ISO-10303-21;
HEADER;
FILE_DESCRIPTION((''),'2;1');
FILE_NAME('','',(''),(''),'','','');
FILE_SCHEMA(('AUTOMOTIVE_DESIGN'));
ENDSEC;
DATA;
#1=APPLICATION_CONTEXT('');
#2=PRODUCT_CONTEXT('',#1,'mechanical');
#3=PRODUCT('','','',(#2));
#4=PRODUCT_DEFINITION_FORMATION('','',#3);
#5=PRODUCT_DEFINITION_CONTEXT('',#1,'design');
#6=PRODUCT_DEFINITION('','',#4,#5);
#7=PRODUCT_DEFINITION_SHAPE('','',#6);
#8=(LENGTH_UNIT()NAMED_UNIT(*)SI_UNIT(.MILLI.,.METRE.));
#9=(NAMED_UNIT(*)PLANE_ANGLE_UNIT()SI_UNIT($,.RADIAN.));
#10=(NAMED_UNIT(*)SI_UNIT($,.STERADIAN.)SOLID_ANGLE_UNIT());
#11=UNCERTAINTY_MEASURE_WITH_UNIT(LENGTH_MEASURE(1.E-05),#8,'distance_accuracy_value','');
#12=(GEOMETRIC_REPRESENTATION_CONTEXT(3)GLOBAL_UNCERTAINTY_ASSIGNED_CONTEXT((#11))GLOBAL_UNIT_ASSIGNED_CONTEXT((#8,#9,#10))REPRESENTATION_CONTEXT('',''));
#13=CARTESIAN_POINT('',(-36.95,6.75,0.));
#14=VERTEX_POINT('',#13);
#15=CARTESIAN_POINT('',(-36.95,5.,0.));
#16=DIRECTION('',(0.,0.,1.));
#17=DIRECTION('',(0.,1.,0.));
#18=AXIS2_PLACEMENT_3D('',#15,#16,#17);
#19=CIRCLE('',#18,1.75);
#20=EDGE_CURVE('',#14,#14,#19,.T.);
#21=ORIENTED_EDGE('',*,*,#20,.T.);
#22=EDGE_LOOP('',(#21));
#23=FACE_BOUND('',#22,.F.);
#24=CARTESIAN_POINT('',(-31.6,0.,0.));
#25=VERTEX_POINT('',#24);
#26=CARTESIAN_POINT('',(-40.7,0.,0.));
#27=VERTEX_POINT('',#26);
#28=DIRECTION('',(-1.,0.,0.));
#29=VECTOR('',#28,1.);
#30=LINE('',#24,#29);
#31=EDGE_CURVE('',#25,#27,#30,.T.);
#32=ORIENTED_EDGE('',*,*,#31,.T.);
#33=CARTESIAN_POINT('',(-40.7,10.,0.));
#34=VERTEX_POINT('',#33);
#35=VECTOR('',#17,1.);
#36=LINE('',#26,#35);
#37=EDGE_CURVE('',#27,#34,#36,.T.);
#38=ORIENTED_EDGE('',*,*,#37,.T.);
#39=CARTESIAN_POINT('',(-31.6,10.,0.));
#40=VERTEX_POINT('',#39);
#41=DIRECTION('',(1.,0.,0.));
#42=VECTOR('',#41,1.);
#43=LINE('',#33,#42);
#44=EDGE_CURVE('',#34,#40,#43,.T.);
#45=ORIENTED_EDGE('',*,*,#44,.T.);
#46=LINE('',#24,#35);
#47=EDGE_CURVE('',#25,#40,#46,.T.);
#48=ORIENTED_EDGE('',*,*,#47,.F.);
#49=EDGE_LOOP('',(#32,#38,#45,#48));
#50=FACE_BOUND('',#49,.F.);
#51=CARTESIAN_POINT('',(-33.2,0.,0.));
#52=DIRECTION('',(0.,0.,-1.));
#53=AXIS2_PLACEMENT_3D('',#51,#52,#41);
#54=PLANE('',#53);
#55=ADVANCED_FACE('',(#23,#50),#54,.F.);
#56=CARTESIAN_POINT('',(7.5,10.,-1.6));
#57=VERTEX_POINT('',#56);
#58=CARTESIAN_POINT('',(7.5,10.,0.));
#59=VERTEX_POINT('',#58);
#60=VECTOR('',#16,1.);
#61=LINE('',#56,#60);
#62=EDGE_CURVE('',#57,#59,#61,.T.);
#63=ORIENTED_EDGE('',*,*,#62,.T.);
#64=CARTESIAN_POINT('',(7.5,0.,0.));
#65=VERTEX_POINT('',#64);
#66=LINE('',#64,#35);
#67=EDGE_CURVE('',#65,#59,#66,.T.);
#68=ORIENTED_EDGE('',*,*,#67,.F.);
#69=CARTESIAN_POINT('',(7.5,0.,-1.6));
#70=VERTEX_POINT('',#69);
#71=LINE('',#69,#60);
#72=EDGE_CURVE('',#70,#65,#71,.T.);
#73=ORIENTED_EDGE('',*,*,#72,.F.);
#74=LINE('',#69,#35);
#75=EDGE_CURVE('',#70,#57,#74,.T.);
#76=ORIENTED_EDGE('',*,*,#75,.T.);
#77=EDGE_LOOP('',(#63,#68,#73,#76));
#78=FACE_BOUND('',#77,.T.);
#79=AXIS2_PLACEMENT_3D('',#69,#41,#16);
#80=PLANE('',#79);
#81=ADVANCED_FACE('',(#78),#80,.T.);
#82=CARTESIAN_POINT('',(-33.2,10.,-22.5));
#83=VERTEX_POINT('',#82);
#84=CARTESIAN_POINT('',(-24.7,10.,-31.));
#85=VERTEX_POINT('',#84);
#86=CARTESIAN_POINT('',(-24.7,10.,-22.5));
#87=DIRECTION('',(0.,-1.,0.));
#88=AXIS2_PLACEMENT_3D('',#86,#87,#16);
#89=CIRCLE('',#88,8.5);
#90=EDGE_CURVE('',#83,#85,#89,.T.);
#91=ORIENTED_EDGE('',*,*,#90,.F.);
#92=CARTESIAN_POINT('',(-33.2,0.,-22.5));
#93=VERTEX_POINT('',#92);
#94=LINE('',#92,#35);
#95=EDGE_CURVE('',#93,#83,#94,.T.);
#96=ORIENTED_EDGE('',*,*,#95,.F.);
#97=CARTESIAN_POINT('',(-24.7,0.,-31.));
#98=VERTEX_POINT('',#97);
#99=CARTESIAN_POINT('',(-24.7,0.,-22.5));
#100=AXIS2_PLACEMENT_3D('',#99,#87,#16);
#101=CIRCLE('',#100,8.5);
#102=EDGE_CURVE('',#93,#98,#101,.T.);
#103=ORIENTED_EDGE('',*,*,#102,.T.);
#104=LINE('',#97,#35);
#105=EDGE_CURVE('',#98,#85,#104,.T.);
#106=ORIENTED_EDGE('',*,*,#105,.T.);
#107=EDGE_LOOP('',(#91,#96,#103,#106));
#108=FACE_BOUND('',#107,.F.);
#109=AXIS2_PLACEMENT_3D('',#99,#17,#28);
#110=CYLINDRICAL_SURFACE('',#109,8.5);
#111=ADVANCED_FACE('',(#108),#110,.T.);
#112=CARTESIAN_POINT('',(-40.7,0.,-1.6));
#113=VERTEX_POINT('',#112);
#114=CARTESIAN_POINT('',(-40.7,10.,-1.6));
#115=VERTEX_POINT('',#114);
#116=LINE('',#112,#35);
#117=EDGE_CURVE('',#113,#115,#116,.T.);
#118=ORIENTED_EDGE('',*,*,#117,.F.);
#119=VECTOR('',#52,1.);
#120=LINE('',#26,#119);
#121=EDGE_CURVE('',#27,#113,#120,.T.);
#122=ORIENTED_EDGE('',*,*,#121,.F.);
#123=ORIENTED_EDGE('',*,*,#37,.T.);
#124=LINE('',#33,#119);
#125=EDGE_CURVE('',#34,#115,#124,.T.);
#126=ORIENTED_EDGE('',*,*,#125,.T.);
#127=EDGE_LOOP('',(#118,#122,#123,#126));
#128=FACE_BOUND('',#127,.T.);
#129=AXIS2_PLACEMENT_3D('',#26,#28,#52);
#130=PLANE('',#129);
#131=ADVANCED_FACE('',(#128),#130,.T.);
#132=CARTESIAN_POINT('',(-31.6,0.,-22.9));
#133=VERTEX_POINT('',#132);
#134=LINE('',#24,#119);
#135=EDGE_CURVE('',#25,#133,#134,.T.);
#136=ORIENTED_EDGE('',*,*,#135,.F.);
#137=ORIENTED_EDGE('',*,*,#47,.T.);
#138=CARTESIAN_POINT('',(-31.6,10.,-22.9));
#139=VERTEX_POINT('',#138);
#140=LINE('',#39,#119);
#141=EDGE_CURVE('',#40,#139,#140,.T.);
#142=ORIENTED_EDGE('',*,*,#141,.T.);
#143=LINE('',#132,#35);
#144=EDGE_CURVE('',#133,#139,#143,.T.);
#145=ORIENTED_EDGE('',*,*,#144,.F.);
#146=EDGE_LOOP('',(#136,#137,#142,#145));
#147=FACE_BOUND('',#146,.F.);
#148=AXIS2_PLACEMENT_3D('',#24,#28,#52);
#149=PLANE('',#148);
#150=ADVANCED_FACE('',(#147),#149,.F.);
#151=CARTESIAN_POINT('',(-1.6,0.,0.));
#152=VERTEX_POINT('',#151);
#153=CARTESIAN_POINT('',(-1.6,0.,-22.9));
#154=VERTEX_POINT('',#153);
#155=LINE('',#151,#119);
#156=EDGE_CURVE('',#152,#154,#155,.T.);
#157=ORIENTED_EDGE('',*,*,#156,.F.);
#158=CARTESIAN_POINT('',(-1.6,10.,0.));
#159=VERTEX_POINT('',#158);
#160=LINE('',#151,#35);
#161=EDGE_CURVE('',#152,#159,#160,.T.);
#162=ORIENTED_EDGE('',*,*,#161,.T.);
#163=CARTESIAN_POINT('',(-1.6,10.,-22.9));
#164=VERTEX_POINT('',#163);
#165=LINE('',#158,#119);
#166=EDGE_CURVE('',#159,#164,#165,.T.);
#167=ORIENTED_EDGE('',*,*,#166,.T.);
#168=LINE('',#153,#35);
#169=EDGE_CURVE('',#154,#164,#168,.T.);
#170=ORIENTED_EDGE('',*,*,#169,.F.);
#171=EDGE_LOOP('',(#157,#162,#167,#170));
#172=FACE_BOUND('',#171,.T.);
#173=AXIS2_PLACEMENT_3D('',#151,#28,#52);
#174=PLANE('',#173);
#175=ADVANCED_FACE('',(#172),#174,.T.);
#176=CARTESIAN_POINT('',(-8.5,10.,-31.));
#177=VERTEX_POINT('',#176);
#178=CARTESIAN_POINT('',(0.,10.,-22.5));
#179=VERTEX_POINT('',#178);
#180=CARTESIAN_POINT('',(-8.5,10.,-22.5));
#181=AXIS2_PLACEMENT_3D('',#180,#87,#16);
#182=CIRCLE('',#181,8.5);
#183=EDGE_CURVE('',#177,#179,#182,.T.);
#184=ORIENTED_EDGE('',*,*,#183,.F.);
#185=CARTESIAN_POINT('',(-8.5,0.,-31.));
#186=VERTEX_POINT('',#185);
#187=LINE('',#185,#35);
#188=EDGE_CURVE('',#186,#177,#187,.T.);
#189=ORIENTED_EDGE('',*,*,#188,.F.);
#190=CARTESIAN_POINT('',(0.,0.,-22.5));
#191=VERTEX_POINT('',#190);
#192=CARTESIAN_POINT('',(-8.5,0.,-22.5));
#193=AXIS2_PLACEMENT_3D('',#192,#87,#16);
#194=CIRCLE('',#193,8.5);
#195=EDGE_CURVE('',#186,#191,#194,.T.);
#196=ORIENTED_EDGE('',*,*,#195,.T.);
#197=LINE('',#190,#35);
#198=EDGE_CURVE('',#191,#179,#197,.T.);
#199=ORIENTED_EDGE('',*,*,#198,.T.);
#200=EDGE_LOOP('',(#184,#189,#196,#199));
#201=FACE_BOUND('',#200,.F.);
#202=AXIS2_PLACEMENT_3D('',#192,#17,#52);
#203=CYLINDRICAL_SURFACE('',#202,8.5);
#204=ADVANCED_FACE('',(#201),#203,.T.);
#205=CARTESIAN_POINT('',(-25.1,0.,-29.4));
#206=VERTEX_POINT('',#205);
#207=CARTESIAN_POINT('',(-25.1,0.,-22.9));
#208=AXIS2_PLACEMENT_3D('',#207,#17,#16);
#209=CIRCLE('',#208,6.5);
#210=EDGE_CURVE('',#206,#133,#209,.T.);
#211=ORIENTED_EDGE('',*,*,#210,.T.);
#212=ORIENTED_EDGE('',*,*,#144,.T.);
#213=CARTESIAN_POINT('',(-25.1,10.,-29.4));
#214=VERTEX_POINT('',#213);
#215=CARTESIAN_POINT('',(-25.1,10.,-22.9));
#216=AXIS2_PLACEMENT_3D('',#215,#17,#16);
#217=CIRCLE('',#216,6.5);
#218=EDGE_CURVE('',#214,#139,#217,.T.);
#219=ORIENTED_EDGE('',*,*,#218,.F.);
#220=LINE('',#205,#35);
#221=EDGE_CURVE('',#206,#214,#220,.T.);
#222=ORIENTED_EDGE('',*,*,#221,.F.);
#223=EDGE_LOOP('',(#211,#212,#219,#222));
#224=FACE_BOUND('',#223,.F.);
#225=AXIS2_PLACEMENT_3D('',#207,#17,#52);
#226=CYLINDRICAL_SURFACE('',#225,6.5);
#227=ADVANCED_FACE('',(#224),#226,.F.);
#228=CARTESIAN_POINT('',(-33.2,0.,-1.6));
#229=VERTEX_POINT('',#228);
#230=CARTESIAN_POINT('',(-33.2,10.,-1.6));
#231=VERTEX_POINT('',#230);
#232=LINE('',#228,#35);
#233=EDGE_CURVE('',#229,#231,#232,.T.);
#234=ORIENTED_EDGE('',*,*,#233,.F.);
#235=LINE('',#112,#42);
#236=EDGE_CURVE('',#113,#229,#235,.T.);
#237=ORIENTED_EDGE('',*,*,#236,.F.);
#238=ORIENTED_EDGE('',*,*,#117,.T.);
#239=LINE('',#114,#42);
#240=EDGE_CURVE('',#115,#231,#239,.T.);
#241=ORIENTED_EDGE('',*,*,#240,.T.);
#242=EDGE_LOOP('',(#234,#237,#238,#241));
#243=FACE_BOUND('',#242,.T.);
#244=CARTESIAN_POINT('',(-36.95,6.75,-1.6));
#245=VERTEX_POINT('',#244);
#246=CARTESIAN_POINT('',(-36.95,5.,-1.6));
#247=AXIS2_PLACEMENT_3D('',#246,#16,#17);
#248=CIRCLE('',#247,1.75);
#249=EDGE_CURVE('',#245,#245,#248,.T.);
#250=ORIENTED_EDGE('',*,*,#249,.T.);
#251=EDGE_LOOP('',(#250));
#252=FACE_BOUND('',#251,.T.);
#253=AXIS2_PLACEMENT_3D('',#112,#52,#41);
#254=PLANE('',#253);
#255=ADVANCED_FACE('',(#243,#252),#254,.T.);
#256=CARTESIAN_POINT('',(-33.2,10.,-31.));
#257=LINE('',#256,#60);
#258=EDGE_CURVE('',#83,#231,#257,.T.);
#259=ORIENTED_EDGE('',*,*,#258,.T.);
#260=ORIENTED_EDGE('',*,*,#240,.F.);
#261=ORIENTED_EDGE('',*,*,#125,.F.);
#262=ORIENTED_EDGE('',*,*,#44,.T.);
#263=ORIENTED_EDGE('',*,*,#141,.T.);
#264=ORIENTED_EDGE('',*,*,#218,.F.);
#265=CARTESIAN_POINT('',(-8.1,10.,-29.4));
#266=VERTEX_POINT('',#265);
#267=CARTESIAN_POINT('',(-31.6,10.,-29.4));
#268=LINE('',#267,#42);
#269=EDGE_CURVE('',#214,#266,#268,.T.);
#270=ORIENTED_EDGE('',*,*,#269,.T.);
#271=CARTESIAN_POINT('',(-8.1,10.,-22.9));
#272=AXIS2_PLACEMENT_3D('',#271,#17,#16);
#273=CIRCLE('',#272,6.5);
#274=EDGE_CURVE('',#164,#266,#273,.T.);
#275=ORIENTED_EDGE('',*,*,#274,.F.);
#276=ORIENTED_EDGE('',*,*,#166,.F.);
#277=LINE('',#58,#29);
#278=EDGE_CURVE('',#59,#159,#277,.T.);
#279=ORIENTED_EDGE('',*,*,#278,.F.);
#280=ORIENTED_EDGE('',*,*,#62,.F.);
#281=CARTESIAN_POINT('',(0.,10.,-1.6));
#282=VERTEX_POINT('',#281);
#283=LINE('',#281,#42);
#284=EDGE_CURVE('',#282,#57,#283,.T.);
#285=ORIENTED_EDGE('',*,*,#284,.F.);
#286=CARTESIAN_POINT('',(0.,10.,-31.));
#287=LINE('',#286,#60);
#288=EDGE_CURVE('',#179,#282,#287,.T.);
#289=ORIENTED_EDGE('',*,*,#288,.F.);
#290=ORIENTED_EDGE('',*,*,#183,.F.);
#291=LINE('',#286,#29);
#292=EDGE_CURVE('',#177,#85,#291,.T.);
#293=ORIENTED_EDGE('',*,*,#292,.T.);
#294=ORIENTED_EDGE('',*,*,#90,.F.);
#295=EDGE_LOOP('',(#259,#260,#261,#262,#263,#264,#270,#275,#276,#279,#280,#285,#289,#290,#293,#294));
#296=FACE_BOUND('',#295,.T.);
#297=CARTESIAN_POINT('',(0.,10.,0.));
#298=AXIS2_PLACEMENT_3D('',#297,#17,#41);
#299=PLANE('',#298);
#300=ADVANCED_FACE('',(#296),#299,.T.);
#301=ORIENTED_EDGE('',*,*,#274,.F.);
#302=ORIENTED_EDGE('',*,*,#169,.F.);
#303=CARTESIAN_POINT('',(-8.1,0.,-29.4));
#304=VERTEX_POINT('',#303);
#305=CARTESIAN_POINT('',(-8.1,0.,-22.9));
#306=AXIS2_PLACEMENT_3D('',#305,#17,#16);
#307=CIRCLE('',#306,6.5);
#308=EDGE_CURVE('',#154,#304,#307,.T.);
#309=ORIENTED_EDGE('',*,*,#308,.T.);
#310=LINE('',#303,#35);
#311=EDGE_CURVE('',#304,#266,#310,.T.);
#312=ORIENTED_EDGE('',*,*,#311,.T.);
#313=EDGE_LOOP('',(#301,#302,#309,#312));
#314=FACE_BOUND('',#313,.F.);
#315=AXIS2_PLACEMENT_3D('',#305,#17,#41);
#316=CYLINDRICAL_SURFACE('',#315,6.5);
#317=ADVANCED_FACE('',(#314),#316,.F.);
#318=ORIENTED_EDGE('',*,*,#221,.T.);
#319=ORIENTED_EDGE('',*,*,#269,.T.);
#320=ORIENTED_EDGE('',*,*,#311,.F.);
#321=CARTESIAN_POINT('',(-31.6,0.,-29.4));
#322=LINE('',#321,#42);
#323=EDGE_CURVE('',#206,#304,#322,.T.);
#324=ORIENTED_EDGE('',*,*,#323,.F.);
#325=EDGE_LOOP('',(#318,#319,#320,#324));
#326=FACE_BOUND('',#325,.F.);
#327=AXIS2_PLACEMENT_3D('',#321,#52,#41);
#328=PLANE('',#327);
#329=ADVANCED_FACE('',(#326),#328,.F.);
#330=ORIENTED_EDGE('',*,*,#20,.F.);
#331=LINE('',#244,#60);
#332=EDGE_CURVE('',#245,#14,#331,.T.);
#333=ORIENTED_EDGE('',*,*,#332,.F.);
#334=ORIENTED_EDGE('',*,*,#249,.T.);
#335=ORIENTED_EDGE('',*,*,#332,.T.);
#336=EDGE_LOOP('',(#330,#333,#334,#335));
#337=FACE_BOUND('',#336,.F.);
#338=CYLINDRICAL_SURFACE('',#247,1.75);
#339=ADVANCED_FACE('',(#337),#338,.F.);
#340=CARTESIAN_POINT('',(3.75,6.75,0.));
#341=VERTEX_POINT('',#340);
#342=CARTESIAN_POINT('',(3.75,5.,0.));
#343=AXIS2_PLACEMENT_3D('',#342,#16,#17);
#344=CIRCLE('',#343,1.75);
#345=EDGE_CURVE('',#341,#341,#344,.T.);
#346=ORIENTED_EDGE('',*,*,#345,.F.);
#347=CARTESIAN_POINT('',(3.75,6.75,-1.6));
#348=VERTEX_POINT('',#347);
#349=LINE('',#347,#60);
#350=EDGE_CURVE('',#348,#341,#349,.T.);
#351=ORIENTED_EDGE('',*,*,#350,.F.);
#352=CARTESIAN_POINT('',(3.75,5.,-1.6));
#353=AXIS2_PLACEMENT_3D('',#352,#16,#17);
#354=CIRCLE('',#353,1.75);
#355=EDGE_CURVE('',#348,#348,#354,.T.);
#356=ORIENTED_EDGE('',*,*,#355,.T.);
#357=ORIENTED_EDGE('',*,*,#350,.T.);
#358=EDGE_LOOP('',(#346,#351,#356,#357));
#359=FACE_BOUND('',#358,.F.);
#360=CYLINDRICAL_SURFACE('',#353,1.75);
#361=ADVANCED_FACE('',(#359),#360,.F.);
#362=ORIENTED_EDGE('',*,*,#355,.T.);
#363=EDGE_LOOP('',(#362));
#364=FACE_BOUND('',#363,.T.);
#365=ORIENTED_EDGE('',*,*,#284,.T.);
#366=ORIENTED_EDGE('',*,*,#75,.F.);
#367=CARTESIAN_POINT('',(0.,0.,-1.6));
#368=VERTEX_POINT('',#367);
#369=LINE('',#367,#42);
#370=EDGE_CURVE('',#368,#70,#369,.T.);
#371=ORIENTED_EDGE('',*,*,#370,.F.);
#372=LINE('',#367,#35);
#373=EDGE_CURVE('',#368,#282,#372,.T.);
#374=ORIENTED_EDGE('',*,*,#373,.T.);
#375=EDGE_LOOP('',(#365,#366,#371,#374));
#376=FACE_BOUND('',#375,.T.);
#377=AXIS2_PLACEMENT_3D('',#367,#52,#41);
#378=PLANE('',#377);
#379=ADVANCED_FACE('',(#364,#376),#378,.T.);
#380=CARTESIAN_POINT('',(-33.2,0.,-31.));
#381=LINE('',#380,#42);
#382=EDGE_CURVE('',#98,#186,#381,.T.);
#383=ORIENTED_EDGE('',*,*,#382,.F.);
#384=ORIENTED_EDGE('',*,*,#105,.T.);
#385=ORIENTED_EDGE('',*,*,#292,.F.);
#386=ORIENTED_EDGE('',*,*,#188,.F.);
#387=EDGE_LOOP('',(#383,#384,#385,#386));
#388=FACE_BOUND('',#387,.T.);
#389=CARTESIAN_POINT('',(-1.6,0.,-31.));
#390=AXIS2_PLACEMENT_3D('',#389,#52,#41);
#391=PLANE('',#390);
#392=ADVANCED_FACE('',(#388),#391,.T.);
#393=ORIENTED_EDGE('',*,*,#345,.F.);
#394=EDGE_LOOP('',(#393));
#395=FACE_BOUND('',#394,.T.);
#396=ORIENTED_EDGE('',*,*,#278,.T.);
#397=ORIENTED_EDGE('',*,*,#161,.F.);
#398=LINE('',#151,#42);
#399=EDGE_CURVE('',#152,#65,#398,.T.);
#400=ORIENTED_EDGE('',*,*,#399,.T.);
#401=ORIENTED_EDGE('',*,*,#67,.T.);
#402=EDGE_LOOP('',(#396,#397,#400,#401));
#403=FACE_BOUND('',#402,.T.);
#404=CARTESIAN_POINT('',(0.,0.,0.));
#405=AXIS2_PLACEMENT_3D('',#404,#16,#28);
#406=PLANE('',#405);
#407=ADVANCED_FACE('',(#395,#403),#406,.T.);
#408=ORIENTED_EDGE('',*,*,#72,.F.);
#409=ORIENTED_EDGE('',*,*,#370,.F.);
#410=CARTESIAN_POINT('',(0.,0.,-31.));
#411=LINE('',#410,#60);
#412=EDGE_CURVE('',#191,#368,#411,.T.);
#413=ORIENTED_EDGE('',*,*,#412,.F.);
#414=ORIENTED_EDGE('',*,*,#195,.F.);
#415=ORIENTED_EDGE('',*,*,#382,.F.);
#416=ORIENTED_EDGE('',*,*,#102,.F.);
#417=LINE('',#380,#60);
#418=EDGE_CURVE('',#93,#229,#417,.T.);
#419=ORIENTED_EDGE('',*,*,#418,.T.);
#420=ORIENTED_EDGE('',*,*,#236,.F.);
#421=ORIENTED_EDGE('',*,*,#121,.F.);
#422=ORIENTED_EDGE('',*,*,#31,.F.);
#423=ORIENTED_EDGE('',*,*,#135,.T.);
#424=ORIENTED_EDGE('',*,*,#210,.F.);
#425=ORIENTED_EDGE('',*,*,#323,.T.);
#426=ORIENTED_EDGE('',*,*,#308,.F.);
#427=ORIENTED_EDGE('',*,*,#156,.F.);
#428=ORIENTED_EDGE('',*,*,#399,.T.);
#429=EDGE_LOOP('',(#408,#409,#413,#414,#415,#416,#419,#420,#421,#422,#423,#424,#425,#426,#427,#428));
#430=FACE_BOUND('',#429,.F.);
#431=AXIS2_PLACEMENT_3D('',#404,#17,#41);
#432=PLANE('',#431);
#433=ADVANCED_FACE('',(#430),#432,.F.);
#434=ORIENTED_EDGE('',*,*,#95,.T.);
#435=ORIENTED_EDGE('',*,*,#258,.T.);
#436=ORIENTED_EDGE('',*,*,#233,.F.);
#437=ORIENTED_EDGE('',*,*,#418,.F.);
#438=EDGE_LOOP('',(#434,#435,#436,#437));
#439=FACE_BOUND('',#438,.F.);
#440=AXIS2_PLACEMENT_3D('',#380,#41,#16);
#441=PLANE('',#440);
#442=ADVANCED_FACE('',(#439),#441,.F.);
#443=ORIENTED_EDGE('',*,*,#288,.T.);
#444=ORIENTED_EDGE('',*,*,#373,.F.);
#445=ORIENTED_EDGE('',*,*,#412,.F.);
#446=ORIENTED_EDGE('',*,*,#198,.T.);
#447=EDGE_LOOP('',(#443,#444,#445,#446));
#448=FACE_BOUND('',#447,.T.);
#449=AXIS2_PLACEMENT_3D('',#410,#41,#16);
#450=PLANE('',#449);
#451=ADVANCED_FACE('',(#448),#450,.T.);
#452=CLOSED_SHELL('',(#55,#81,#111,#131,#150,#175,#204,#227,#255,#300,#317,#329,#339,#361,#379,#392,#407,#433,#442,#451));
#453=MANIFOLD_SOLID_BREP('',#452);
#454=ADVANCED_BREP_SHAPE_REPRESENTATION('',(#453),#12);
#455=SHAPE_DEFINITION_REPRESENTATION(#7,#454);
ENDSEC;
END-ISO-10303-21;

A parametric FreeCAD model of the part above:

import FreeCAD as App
import Part
import Sketcher
from FreeCAD import Vector
Q = App.Units.Quantity


def edges_at(feature, points):
    """Names of the edges that pass closest to the given points."""
    edges = feature.Shape.Edges
    near = lambda p: min(range(len(edges)), key=lambda i: edges[i].distToShape(Part.Vertex(*p))[0])
    return sorted({f"Edge{near(p) + 1}" for p in points})


def add_polygon(sketch, points):
    """Adds a closed chain of lines whose ends are joined by coincident constraints."""
    first, n = sketch.GeometryCount, len(points)
    for a, b in zip(points, points[1:] + points[:1]):
        sketch.addGeometry(Part.LineSegment(App.Vector(*a, 0), App.Vector(*b, 0)), False)
    for i in range(n):
        sketch.addConstraint(Sketcher.Constraint("Coincident", first + i, 2, first + (i + 1) % n, 1))

doc = App.newDocument("Part")
params = doc.addObject("Spreadsheet::Sheet", "Params")
for row, (alias, value) in enumerate([
    ("sketch1_width", "30 mm"),
    ("sketch1_width2", "7.5 mm"),
    ("sketch1_height", "1.6 mm"),
    ("sketch1_height2", "29.4 mm"),
    ("pad1_length", "10 mm"),
    ("sketch2_diameter", "3.5 mm"),
    ("hole_diameter", "3.5 mm"),
    ("hole_depth", "4 mm"),
    ("sketch3_diameter", "3.5 mm"),
    ("hole2_diameter", "3.5 mm"),
    ("hole2_depth", "4 mm"),
    ("fillet_radius", "6.5 mm"),
    ("fillet2_radius", "8.5 mm"),
], start=1):
    params.set(f"A{row}", alias)
    params.set(f"B{row}", "=" + value)
    params.setAlias(f"B{row}", alias)

body = doc.addObject("PartDesign::Body", "Body")

# Sketch on XZ plane
sketch1 = body.newObject("Sketcher::SketchObject", "Sketch")
sketch1.AttachmentSupport = (doc.getObject("XZ_Plane"), [""])
sketch1.MapMode = "FlatFace"
add_polygon(sketch1, [(-1.6, 0), (7.5, 0), (7.5, -1.6), (0, -1.6), (0, -31), (-33.2, -31), (-33.2, -1.6), (-40.7, -1.6), (-40.7, 0), (-31.6, 0), (-31.6, -29.4), (-1.6, -29.4)])  # lines 0-11
sketch1.addConstraint([
    Sketcher.Constraint("Horizontal", 0),
    Sketcher.Constraint("Vertical", 1),
    Sketcher.Constraint("Horizontal", 2),
    Sketcher.Constraint("Vertical", 3),
    Sketcher.Constraint("Horizontal", 4),
    Sketcher.Constraint("Vertical", 5),
    Sketcher.Constraint("Horizontal", 6),
    Sketcher.Constraint("Vertical", 7),
    Sketcher.Constraint("Horizontal", 8),
    Sketcher.Constraint("Vertical", 9),
    Sketcher.Constraint("Horizontal", 10),
    Sketcher.Constraint("Vertical", 11),
    Sketcher.Constraint("PointOnObject", 0, 2, -1),
    Sketcher.Constraint("PointOnObject", 2, 2, -2),
    Sketcher.Constraint("PointOnObject", 7, 2, -1),
    Sketcher.Constraint("Horizontal", 2, 2, 5, 2),
    Sketcher.Constraint("Equal", 2, 6),
    Sketcher.Constraint("Equal", 0, 8),
    Sketcher.Constraint("Equal", 5, 9),
    Sketcher.Constraint("DistanceX", 10, 1, 10, 2, Q("30 mm")),
    Sketcher.Constraint("DistanceX", 2, 2, 2, 1, Q("7.5 mm")),
    Sketcher.Constraint("DistanceY", 1, 2, 1, 1, Q("1.6 mm")),
    Sketcher.Constraint("DistanceY", 3, 2, 3, 1, Q("29.4 mm")),
    Sketcher.Constraint("DistanceX", 10, 2, -1, 1, Q("1.6 mm")),
])
sketch1.setExpression("Constraints[31]", "Params.sketch1_width")
sketch1.setExpression("Constraints[32]", "Params.sketch1_width2")
sketch1.setExpression("Constraints[33]", "Params.sketch1_height")
sketch1.setExpression("Constraints[34]", "Params.sketch1_height2")
pad1 = body.newObject("PartDesign::Pad", "Pad")
pad1.Profile = sketch1
pad1.setExpression("Length", "Params.pad1_length")
pad1.Reversed = True

# Sketch on XY plane
sketch2 = body.newObject("Sketcher::SketchObject", "Sketch001")
sketch2.AttachmentSupport = (doc.getObject("XY_Plane"), [""])
sketch2.MapMode = "FlatFace"
sketch2.AttachmentOffset = App.Placement(Vector(0, 0, -1.6), App.Rotation())
sketch2.addGeometry(Part.Circle(Vector(3.8, 5, 0), Vector(0, 0, 1), 1.8), False)
sketch2.addConstraint([
    Sketcher.Constraint("Diameter", 0, Q("3.5 mm")),
    Sketcher.Constraint("DistanceY", -1, 1, 0, 3, Q("5 mm")),
    Sketcher.Constraint("DistanceX", -1, 1, 0, 3, Q("3.75 mm")),
])
sketch2.setExpression("Constraints[0]", "Params.sketch2_diameter")
doc.recompute()
hole = body.newObject("PartDesign::Hole", "Hole")
hole.Profile = sketch2
hole.ThreadType = "None"
hole.setExpression("Diameter", "Params.hole_diameter")
hole.DepthType = "Dimension"
hole.setExpression("Depth", "Params.hole_depth")
hole.DrillPoint = "Angled"
hole.DrillPointAngle = 118
hole.Reversed = True

# Sketch on XY plane
sketch3 = body.newObject("Sketcher::SketchObject", "Sketch002")
sketch3.AttachmentSupport = (doc.getObject("XY_Plane"), [""])
sketch3.MapMode = "FlatFace"
sketch3.AttachmentOffset = App.Placement(Vector(0, 0, -1.6), App.Rotation())
sketch3.addGeometry(Part.Circle(Vector(-37, 5, 0), Vector(0, 0, 1), 1.8), False)
sketch3.addConstraint([
    Sketcher.Constraint("Diameter", 0, Q("3.5 mm")),
    Sketcher.Constraint("DistanceY", -1, 1, 0, 3, Q("5 mm")),
    Sketcher.Constraint("DistanceX", 0, 3, -1, 1, Q("36.95 mm")),
])
sketch3.setExpression("Constraints[0]", "Params.sketch3_diameter")
doc.recompute()
hole2 = body.newObject("PartDesign::Hole", "Hole001")
hole2.Profile = sketch3
hole2.ThreadType = "None"
hole2.setExpression("Diameter", "Params.hole2_diameter")
hole2.DepthType = "Dimension"
hole2.setExpression("Depth", "Params.hole2_depth")
hole2.DrillPoint = "Angled"
hole2.DrillPointAngle = 118
hole2.Reversed = True
doc.recompute()

fillet = body.newObject("PartDesign::Fillet", "Fillet")
fillet.Base = (hole2, edges_at(hole2, [(-1.6, 5, -29.4), (-31.6, 5, -29.4)]))
fillet.setExpression("Radius", "Params.fillet_radius")
doc.recompute()

fillet2 = body.newObject("PartDesign::Fillet", "Fillet001")
fillet2.Base = (fillet, edges_at(fillet, [(0, 5, -31), (-33.2, 5, -31)]))
fillet2.setExpression("Radius", "Params.fillet2_radius")

doc.recompute()
